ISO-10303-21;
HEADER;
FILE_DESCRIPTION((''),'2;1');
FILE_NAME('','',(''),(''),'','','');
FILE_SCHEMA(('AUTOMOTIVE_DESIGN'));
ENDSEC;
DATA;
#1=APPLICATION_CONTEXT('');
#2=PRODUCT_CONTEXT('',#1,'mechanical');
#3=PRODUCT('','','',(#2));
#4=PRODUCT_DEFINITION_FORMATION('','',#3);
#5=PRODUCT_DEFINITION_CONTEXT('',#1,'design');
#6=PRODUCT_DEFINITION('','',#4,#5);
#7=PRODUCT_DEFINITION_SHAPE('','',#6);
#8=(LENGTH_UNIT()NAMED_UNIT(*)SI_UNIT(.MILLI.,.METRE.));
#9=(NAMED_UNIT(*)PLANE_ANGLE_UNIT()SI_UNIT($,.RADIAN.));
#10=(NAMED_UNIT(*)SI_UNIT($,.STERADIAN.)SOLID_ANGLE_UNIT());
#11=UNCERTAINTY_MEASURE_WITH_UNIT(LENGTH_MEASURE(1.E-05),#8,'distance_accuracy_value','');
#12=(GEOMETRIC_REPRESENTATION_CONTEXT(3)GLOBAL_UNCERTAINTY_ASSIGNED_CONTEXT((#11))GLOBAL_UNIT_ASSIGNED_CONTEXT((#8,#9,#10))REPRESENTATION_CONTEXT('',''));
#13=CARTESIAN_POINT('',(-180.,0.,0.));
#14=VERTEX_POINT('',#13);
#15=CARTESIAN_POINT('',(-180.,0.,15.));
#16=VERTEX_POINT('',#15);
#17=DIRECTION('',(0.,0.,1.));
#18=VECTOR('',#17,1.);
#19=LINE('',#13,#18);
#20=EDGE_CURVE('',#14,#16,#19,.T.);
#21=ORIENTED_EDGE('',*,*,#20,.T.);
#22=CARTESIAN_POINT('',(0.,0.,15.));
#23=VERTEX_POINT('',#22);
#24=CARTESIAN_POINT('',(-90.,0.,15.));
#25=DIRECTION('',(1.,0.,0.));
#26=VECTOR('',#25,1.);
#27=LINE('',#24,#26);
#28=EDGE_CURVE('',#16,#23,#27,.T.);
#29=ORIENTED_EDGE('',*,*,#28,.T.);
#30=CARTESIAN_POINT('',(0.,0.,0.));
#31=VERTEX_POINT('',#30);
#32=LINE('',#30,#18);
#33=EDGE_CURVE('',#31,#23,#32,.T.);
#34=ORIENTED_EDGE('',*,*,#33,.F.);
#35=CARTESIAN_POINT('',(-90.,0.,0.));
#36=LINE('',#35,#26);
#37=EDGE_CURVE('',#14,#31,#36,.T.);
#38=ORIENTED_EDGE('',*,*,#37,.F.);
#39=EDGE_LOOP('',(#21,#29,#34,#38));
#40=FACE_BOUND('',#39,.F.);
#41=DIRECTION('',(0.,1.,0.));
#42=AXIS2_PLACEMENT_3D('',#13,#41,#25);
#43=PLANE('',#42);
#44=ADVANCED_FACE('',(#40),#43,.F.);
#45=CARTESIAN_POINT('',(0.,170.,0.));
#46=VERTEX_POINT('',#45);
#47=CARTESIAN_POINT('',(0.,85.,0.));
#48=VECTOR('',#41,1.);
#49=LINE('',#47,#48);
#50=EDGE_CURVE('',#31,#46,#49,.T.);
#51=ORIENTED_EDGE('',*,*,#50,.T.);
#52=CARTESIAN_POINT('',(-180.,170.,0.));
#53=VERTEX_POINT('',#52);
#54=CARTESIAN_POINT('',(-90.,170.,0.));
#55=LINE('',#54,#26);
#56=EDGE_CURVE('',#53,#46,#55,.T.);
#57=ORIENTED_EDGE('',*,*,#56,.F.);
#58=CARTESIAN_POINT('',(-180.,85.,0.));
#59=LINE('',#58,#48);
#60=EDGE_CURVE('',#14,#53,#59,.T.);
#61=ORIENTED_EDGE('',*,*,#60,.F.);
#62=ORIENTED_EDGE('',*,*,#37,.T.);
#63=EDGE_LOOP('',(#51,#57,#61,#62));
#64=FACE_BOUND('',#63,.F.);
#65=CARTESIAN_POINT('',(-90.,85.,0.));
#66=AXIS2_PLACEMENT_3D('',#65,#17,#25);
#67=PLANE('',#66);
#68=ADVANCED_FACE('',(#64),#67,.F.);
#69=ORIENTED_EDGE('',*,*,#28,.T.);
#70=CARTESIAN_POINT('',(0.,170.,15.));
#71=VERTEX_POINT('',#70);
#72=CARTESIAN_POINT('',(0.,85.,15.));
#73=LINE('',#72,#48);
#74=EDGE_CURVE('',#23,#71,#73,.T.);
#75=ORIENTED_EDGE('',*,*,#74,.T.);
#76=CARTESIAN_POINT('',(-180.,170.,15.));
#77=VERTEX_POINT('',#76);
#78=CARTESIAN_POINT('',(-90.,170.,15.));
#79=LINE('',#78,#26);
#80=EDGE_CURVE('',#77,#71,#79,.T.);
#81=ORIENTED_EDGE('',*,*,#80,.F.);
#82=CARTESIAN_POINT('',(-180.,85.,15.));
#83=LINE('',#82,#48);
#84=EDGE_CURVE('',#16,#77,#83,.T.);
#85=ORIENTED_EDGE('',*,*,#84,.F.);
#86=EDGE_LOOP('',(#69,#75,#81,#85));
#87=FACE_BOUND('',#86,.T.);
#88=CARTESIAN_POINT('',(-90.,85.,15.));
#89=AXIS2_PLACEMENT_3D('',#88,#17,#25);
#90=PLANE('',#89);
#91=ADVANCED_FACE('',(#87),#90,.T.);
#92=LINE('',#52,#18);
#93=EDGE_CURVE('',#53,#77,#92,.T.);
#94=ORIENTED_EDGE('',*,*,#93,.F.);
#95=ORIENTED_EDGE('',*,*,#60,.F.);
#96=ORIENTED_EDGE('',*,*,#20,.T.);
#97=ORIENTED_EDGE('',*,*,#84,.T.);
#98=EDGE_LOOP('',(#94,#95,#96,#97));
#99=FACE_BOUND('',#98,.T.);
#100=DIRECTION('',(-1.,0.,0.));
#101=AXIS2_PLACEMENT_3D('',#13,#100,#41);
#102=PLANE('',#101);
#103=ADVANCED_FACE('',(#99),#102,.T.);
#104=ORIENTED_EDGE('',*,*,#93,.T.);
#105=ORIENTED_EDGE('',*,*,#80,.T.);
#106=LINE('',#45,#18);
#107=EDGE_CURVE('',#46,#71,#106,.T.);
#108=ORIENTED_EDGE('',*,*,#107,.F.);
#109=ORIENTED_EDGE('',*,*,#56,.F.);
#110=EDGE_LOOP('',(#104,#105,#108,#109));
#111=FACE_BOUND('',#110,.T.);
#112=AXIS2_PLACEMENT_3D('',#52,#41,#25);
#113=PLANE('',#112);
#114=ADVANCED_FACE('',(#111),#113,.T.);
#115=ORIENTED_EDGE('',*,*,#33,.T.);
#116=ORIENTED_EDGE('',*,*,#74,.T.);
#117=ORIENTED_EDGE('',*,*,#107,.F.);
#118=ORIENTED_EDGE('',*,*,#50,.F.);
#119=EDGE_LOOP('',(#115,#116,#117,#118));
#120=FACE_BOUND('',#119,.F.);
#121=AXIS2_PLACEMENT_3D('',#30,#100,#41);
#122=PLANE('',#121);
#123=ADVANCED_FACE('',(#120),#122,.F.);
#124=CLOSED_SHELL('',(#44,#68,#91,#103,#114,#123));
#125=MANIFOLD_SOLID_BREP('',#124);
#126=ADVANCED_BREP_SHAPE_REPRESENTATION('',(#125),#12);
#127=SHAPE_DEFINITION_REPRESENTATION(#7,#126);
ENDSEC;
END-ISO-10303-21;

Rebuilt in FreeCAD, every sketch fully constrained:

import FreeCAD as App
import Part
import Sketcher
Q = App.Units.Quantity

doc = App.newDocument("Part")
body = doc.addObject("PartDesign::Body", "Body")

# Sketch on XY plane
sketch1 = body.newObject("Sketcher::SketchObject", "Sketch")
sketch1.AttachmentSupport = (doc.getObject("XY_Plane"), [""])
sketch1.MapMode = "FlatFace"
sketch1.addGeometry([
    Part.LineSegment(App.Vector(-180, 170, 0), App.Vector(-180, 0, 0)),
    Part.LineSegment(App.Vector(-180, 0, 0), App.Vector(0, 0, 0)),
    Part.LineSegment(App.Vector(0, 0, 0), App.Vector(0, 170, 0)),
    Part.LineSegment(App.Vector(0, 170, 0), App.Vector(-180, 170, 0)),
], False)
sketch1.addConstraint([
    Sketcher.Constraint("Coincident", 0, 2, 1, 1),
    Sketcher.Constraint("Coincident", 1, 2, 2, 1),
    Sketcher.Constraint("Coincident", 2, 2, 3, 1),
    Sketcher.Constraint("Coincident", 3, 2, 0, 1),
    Sketcher.Constraint("Vertical", 0),
    Sketcher.Constraint("Horizontal", 1),
    Sketcher.Constraint("Vertical", 2),
    Sketcher.Constraint("Horizontal", 3),
    Sketcher.Constraint("Coincident", 1, 2, -1, 1),
    Sketcher.Constraint("DistanceX", 1, 1, 1, 2, Q("180 mm")),
    Sketcher.Constraint("DistanceY", 0, 2, 0, 1, Q("170 mm")),
])
pad1 = body.newObject("PartDesign::Pad", "Pad")
pad1.Profile = sketch1
pad1.Length = 15

doc.recompute()
